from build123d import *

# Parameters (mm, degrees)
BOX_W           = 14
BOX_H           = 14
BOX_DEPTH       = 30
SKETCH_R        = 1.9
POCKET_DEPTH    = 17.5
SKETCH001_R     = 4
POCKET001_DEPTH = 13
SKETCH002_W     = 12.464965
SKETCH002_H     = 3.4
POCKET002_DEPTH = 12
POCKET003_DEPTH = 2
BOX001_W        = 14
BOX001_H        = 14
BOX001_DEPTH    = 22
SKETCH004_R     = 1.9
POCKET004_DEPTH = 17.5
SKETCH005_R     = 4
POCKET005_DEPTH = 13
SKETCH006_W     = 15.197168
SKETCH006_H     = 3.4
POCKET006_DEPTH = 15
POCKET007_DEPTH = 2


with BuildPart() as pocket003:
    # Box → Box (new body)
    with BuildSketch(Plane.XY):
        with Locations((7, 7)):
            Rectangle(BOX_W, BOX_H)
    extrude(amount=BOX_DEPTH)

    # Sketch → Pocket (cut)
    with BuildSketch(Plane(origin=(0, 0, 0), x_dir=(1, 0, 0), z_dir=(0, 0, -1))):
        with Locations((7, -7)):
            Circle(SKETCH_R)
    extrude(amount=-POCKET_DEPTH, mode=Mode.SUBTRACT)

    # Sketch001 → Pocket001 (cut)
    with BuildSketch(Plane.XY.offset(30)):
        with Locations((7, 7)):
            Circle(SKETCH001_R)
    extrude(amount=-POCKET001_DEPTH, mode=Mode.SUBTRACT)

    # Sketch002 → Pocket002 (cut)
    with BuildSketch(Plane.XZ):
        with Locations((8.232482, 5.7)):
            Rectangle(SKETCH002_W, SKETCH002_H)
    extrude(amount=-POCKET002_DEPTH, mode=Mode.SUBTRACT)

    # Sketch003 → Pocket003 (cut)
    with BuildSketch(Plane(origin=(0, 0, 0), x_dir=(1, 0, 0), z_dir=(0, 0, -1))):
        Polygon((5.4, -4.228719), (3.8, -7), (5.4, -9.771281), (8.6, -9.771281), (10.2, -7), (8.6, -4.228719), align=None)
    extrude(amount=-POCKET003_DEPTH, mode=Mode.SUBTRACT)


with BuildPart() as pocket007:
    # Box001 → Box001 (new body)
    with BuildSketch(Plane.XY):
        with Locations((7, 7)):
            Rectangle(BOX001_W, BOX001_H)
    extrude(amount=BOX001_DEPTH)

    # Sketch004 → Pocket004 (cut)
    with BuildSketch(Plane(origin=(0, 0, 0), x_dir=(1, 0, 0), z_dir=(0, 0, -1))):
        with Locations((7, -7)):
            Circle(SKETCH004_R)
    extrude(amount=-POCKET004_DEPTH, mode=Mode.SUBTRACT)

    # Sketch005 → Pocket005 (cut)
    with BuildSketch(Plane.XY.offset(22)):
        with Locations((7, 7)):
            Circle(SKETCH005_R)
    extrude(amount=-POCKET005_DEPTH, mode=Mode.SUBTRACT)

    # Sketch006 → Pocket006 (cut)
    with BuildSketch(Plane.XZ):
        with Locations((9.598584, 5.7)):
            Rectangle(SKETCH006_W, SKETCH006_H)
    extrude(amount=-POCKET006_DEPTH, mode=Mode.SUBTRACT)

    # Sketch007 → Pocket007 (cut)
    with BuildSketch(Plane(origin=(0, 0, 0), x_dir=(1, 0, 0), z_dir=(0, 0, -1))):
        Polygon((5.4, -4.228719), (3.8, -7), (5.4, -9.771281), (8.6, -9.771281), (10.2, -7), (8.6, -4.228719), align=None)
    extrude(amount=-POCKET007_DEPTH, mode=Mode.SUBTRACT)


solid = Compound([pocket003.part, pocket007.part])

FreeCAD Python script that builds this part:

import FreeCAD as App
import Part
import Sketcher
Q = App.Units.Quantity


def add_polygon(sketch, points):
    """Adds a closed chain of lines whose ends are joined by coincident constraints."""
    first, n = sketch.GeometryCount, len(points)
    for a, b in zip(points, points[1:] + points[:1]):
        sketch.addGeometry(Part.LineSegment(App.Vector(*a, 0), App.Vector(*b, 0)), False)
    for i in range(n):
        sketch.addConstraint(Sketcher.Constraint("Coincident", first + i, 2, first + (i + 1) % n, 1))

doc = App.newDocument("Part")
body = doc.addObject("PartDesign::Body", "Body")

sketch1 = doc.addObject("Sketcher::SketchObject", "Sketch")
body.addObject(sketch1)
sketch1.AttachmentSupport = (doc.XY_Plane, [""])
sketch1.MapMode = "FlatFace"
add_polygon(sketch1, [(0, 14), (0, 0), (14, 0), (14, 14)])
sketch1.addConstraint([
    Sketcher.Constraint("Vertical", 0),
    Sketcher.Constraint("Horizontal", 1),
    Sketcher.Constraint("Vertical", 2),
    Sketcher.Constraint("Horizontal", 3),
    Sketcher.Constraint("Coincident", 0, 2, -1, 1),
    Sketcher.Constraint("Equal", 3, 0),
    Sketcher.Constraint("DistanceX", 1, 1, 1, 2, 14.0),
])
pad1 = doc.addObject("PartDesign::Pad", "Pad")
body.addObject(pad1)
pad1.Profile = sketch1
pad1.Length = 30

sketch2 = doc.addObject("Sketcher::SketchObject", "Sketch001")
body.addObject(sketch2)
sketch2.AttachmentSupport = (doc.XY_Plane, [""])
sketch2.MapMode = "FlatFace"
sketch2.addGeometry(Part.Circle(App.Vector(7, 7, 0), App.Vector(0, 0, 1), 1.9), False)
sketch2.addConstraint([
    Sketcher.Constraint("Diameter", 0, 3.8),
    Sketcher.Constraint("DistanceX", -1, 1, 0, 3, 7.0),
    Sketcher.Constraint("DistanceY", -1, 1, 0, 3, 7.0),
])
pocket1 = doc.addObject("PartDesign::Pocket", "Pocket")
body.addObject(pocket1)
pocket1.Profile = sketch2
pocket1.Length = 17.5
pocket1.Reversed = True

sketch3 = doc.addObject("Sketcher::SketchObject", "Sketch002")
body.addObject(sketch3)
sketch3.AttachmentSupport = (doc.XY_Plane, [""])
sketch3.MapMode = "FlatFace"
sketch3.AttachmentOffset = App.Placement(App.Vector(0, 0, 30), App.Rotation())
sketch3.addGeometry(Part.Circle(App.Vector(7, 7, 0), App.Vector(0, 0, 1), 4), False)
sketch3.addConstraint([
    Sketcher.Constraint("Diameter", 0, 8.0),
    Sketcher.Constraint("DistanceX", -1, 1, 0, 3, 7.0),
    Sketcher.Constraint("DistanceY", -1, 1, 0, 3, 7.0),
])
pocket2 = doc.addObject("PartDesign::Pocket", "Pocket001")
body.addObject(pocket2)
pocket2.Profile = sketch3
pocket2.Length = 13

sketch4 = doc.addObject("Sketcher::SketchObject", "Sketch003")
body.addObject(sketch4)
sketch4.AttachmentSupport = (doc.XZ_Plane, [""])
sketch4.MapMode = "FlatFace"
add_polygon(sketch4, [(2, 7.4), (2, 4), (14.5, 4), (14.5, 7.4)])
sketch4.addConstraint([
    Sketcher.Constraint("Vertical", 0),
    Sketcher.Constraint("Horizontal", 1),
    Sketcher.Constraint("Vertical", 2),
    Sketcher.Constraint("Horizontal", 3),
    Sketcher.Constraint("DistanceY", 0, 2, 0, 1, 3.4),
    Sketcher.Constraint("DistanceX", -1, 1, 0, 2, 1.999999),
    Sketcher.Constraint("DistanceY", -1, 1, 0, 2, 4.0),
    Sketcher.Constraint("DistanceX", 1, 1, 1, 2, 12.464965),
])
pocket3 = doc.addObject("PartDesign::Pocket", "Pocket002")
body.addObject(pocket3)
pocket3.Profile = sketch4
pocket3.Length = 12

sketch5 = doc.addObject("Sketcher::SketchObject", "Sketch004")
body.addObject(sketch5)
sketch5.AttachmentSupport = (doc.XY_Plane, [""])
sketch5.MapMode = "FlatFace"
add_polygon(sketch5, [(5.4, 4.2), (3.8, 7), (5.4, 9.8), (8.6, 9.8), (10.2, 7), (8.6, 4.2)])
sketch5.addConstraint([
    Sketcher.Constraint("Horizontal", 2),
    Sketcher.Constraint("Horizontal", 5),
    Sketcher.Constraint("Parallel", 0, 3),
    Sketcher.Constraint("Parallel", 1, 4),
    Sketcher.Constraint("Horizontal", 0, 2, 3, 2),
    Sketcher.Constraint("Vertical", 2, 2, 4, 2),
    Sketcher.Constraint("Vertical", 1, 2, 5, 2),
    Sketcher.Constraint("Angle", 0, Q("120.000003 deg")),
    Sketcher.Constraint("DistanceX", 2, 1, 2, 2, 3.2),
    Sketcher.Constraint("DistanceY", -1, 1, 0, 2, 7.0),
    Sketcher.Constraint("Distance", 0, 3.2),
    Sketcher.Constraint("DistanceX", -1, 1, 0, 2, 3.8),
])
pocket4 = doc.addObject("PartDesign::Pocket", "Pocket003")
body.addObject(pocket4)
pocket4.Profile = sketch5
pocket4.Length = 2
pocket4.Reversed = True
body2 = doc.addObject("PartDesign::Body", "Body001")

sketch6 = doc.addObject("Sketcher::SketchObject", "Sketch005")
body2.addObject(sketch6)
sketch6.AttachmentSupport = (doc.getObject("XY_Plane001"), [""])
sketch6.MapMode = "FlatFace"
add_polygon(sketch6, [(0, 14), (0, 0), (14, 0), (14, 14)])
sketch6.addConstraint([
    Sketcher.Constraint("Vertical", 0),
    Sketcher.Constraint("Horizontal", 1),
    Sketcher.Constraint("Vertical", 2),
    Sketcher.Constraint("Horizontal", 3),
    Sketcher.Constraint("Coincident", 0, 2, -1, 1),
    Sketcher.Constraint("Equal", 3, 0),
    Sketcher.Constraint("DistanceX", 1, 1, 1, 2, 14.0),
])
pad2 = doc.addObject("PartDesign::Pad", "Pad001")
body2.addObject(pad2)
pad2.Profile = sketch6
pad2.Length = 22

sketch7 = doc.addObject("Sketcher::SketchObject", "Sketch006")
body2.addObject(sketch7)
sketch7.AttachmentSupport = (doc.getObject("XY_Plane001"), [""])
sketch7.MapMode = "FlatFace"
sketch7.addGeometry(Part.Circle(App.Vector(7, 7, 0), App.Vector(0, 0, 1), 1.9), False)
sketch7.addConstraint([
    Sketcher.Constraint("Diameter", 0, 3.8),
    Sketcher.Constraint("DistanceX", -1, 1, 0, 3, 7.0),
    Sketcher.Constraint("DistanceY", -1, 1, 0, 3, 7.0),
])
pocket5 = doc.addObject("PartDesign::Pocket", "Pocket004")
body2.addObject(pocket5)
pocket5.Profile = sketch7
pocket5.Length = 17.5
pocket5.Reversed = True

sketch8 = doc.addObject("Sketcher::SketchObject", "Sketch007")
body2.addObject(sketch8)
sketch8.AttachmentSupport = (doc.getObject("XY_Plane001"), [""])
sketch8.MapMode = "FlatFace"
sketch8.AttachmentOffset = App.Placement(App.Vector(0, 0, 22), App.Rotation())
sketch8.addGeometry(Part.Circle(App.Vector(7, 7, 0), App.Vector(0, 0, 1), 4), False)
sketch8.addConstraint([
    Sketcher.Constraint("Diameter", 0, 8.0),
    Sketcher.Constraint("DistanceX", -1, 1, 0, 3, 7.0),
    Sketcher.Constraint("DistanceY", -1, 1, 0, 3, 7.0),
])
pocket6 = doc.addObject("PartDesign::Pocket", "Pocket005")
body2.addObject(pocket6)
pocket6.Profile = sketch8
pocket6.Length = 13

sketch9 = doc.addObject("Sketcher::SketchObject", "Sketch008")
body2.addObject(sketch9)
sketch9.AttachmentSupport = (doc.getObject("XZ_Plane001"), [""])
sketch9.MapMode = "FlatFace"
add_polygon(sketch9, [(2, 7.4), (2, 4), (17.2, 4), (17.2, 7.4)])
sketch9.addConstraint([
    Sketcher.Constraint("Vertical", 0),
    Sketcher.Constraint("Horizontal", 1),
    Sketcher.Constraint("Vertical", 2),
    Sketcher.Constraint("Horizontal", 3),
    Sketcher.Constraint("DistanceY", 0, 2, 0, 1, 3.4),
    Sketcher.Constraint("DistanceX", -1, 1, 0, 2, 2.0),
    Sketcher.Constraint("DistanceY", -1, 1, 0, 2, 4.0),
    Sketcher.Constraint("DistanceX", 1, 1, 1, 2, 15.197168),
])
pocket7 = doc.addObject("PartDesign::Pocket", "Pocket006")
body2.addObject(pocket7)
pocket7.Profile = sketch9
pocket7.Length = 15

sketch10 = doc.addObject("Sketcher::SketchObject", "Sketch009")
body2.addObject(sketch10)
sketch10.AttachmentSupport = (doc.getObject("XY_Plane001"), [""])
sketch10.MapMode = "FlatFace"
add_polygon(sketch10, [(5.4, 4.2), (3.8, 7), (5.4, 9.8), (8.6, 9.8), (10.2, 7), (8.6, 4.2)])
sketch10.addConstraint([
    Sketcher.Constraint("Horizontal", 2),
    Sketcher.Constraint("Horizontal", 5),
    Sketcher.Constraint("Parallel", 0, 3),
    Sketcher.Constraint("Parallel", 1, 4),
    Sketcher.Constraint("Horizontal", 0, 2, 3, 2),
    Sketcher.Constraint("Vertical", 2, 2, 4, 2),
    Sketcher.Constraint("Vertical", 1, 2, 5, 2),
    Sketcher.Constraint("Angle", 0, Q("120.000003 deg")),
    Sketcher.Constraint("DistanceX", 2, 1, 2, 2, 3.2),
    Sketcher.Constraint("DistanceY", -1, 1, 0, 2, 7.0),
    Sketcher.Constraint("Distance", 0, 3.2),
    Sketcher.Constraint("DistanceX", -1, 1, 0, 2, 3.8),
])
pocket8 = doc.addObject("PartDesign::Pocket", "Pocket007")
body2.addObject(pocket8)
pocket8.Profile = sketch10
pocket8.Length = 2
pocket8.Reversed = True

doc.recompute()
